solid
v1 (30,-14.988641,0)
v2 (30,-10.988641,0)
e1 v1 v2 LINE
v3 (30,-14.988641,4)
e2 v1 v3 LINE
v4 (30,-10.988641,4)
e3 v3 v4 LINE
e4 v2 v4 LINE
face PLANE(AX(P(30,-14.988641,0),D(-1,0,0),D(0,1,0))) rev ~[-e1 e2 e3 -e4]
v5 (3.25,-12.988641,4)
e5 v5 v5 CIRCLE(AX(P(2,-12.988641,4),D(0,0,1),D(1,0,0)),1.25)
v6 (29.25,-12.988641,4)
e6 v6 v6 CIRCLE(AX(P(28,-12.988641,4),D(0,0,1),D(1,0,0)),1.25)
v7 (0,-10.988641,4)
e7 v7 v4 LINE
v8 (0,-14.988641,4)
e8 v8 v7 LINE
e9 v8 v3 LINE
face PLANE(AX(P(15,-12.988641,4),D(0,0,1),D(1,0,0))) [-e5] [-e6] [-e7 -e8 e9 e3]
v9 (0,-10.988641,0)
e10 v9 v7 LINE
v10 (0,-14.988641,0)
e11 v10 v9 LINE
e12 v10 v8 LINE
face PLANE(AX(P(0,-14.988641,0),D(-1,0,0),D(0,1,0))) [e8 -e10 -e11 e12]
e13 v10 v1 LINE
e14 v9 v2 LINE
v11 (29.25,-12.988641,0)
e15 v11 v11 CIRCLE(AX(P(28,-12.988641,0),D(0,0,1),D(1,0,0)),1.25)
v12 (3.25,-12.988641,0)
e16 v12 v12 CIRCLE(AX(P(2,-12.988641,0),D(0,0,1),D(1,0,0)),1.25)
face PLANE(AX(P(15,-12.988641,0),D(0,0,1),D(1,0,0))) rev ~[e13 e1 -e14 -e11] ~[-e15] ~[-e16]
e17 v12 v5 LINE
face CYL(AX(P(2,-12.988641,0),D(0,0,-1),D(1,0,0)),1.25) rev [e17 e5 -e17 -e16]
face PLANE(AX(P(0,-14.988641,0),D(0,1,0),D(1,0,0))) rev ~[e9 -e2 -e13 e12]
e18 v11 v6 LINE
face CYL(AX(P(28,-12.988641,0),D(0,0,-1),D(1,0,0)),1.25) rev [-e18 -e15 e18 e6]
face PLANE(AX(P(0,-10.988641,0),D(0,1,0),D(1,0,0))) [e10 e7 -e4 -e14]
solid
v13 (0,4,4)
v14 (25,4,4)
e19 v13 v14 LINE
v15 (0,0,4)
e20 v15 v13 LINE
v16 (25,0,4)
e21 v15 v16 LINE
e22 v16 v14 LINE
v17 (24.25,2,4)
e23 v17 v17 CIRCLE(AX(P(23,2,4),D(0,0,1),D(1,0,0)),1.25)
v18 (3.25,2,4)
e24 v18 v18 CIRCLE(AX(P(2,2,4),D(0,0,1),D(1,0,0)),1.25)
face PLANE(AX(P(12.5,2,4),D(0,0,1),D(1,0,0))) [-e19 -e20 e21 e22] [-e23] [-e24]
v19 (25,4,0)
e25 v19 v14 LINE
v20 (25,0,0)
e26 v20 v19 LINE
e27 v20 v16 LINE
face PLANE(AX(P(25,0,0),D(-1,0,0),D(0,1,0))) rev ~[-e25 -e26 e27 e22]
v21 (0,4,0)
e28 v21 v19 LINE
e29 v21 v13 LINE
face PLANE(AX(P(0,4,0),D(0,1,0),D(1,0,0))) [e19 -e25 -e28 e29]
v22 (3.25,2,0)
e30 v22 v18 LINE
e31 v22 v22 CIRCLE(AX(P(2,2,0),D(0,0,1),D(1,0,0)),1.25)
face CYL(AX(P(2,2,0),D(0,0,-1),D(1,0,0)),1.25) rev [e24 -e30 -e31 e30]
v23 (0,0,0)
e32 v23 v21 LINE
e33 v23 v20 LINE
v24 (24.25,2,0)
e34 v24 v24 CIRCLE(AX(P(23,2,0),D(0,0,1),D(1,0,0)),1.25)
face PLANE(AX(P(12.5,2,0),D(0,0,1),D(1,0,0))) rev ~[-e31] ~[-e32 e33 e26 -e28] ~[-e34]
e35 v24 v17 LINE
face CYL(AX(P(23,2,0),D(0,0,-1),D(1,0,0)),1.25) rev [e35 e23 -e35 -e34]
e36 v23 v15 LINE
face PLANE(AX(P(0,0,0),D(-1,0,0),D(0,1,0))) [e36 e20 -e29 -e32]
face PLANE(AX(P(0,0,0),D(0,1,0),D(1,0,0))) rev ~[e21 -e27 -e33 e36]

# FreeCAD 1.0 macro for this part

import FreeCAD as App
import Part
import Sketcher
from FreeCAD import Vector
Q = App.Units.Quantity

doc = App.newDocument("Part")
body = doc.addObject("PartDesign::Body", "Body")

sketch1 = body.newObject("Sketcher::SketchObject", "Sketch")
sketch1.AttachmentSupport = (doc.getObject("XY_Plane"), [""])
sketch1.MapMode = "FlatFace"
sketch1.addGeometry(Part.LineSegment(Vector(0, 4, 0), Vector(0, 0, 0)), False)
sketch1.addGeometry(Part.LineSegment(Vector(0, 0, 0), Vector(25, 0, 0)), False)
sketch1.addGeometry(Part.LineSegment(Vector(25, 0, 0), Vector(25, 4, 0)), False)
sketch1.addGeometry(Part.LineSegment(Vector(25, 4, 0), Vector(0, 4, 0)), False)
sketch1.addGeometry(Part.Circle(Vector(2, 2, 0), Vector(0, 0, 1), 1.25), False)
sketch1.addGeometry(Part.Circle(Vector(23, 2, 0), Vector(0, 0, 1), 1.25), False)
sketch1.addConstraint(Sketcher.Constraint("Coincident", 0, 2, 1, 1))
sketch1.addConstraint(Sketcher.Constraint("Coincident", 1, 2, 2, 1))
sketch1.addConstraint(Sketcher.Constraint("Coincident", 2, 2, 3, 1))
sketch1.addConstraint(Sketcher.Constraint("Coincident", 3, 2, 0, 1))
sketch1.addConstraint(Sketcher.Constraint("Vertical", 0))
sketch1.addConstraint(Sketcher.Constraint("Horizontal", 1))
sketch1.addConstraint(Sketcher.Constraint("Vertical", 2))
sketch1.addConstraint(Sketcher.Constraint("Horizontal", 3))
sketch1.addConstraint(Sketcher.Constraint("Coincident", 0, 2, -1, 1))
sketch1.addConstraint(Sketcher.Constraint("Equal", 4, 5))
sketch1.addConstraint(Sketcher.Constraint("Horizontal", 4, 3, 5, 3))
sketch1.addConstraint(Sketcher.Constraint("Diameter", 4, Q("2.5 mm")))
sketch1.addConstraint(Sketcher.Constraint("DistanceX", 1, 1, 1, 2, Q("25 mm")))
sketch1.addConstraint(Sketcher.Constraint("DistanceY", 0, 2, 0, 1, Q("4 mm")))
sketch1.addConstraint(Sketcher.Constraint("DistanceX", -1, 1, 4, 3, Q("2 mm")))
sketch1.addConstraint(Sketcher.Constraint("DistanceY", -1, 1, 4, 3, Q("2 mm")))
sketch1.addConstraint(Sketcher.Constraint("DistanceX", -1, 1, 5, 3, Q("23 mm")))
pad1 = body.newObject("PartDesign::Pad", "Pad")
pad1.Profile = sketch1
pad1.Length = 4
body2 = doc.addObject("PartDesign::Body", "Body001")

sketch2 = body2.newObject("Sketcher::SketchObject", "Sketch001")
sketch2.AttachmentSupport = (doc.getObject("XY_Plane001"), [""])
sketch2.MapMode = "FlatFace"
sketch2.addGeometry(Part.LineSegment(Vector(0, -10.988641, 0), Vector(0, -14.988641, 0)), False)
sketch2.addGeometry(Part.LineSegment(Vector(0, -14.988641, 0), Vector(30, -14.988641, 0)), False)
sketch2.addGeometry(Part.LineSegment(Vector(30, -14.988641, 0), Vector(30, -10.988641, 0)), False)
sketch2.addGeometry(Part.LineSegment(Vector(30, -10.988641, 0), Vector(0, -10.988641, 0)), False)
sketch2.addGeometry(Part.Circle(Vector(2, -12.988641, 0), Vector(0, 0, 1), 1.25), False)
sketch2.addGeometry(Part.Circle(Vector(28, -12.988641, 0), Vector(0, 0, 1), 1.25), False)
sketch2.addConstraint(Sketcher.Constraint("Coincident", 0, 2, 1, 1))
sketch2.addConstraint(Sketcher.Constraint("Coincident", 1, 2, 2, 1))
sketch2.addConstraint(Sketcher.Constraint("Coincident", 2, 2, 3, 1))
sketch2.addConstraint(Sketcher.Constraint("Coincident", 3, 2, 0, 1))
sketch2.addConstraint(Sketcher.Constraint("Vertical", 0))
sketch2.addConstraint(Sketcher.Constraint("Horizontal", 1))
sketch2.addConstraint(Sketcher.Constraint("Vertical", 2))
sketch2.addConstraint(Sketcher.Constraint("Horizontal", 3))
sketch2.addConstraint(Sketcher.Constraint("Equal", 4, 5))
sketch2.addConstraint(Sketcher.Constraint("PointOnObject", 0, 2, -2))
sketch2.addConstraint(Sketcher.Constraint("Horizontal", 4, 3, 5, 3))
sketch2.addConstraint(Sketcher.Constraint("Diameter", 4, Q("2.5 mm")))
sketch2.addConstraint(Sketcher.Constraint("DistanceX", 1, 1, 1, 2, Q("30 mm")))
sketch2.addConstraint(Sketcher.Constraint("DistanceY", 0, 2, 0, 1, Q("4 mm")))
sketch2.addConstraint(Sketcher.Constraint("DistanceX", -1, 1, 4, 3, Q("2 mm")))
sketch2.addConstraint(Sketcher.Constraint("DistanceX", -1, 1, 5, 3, Q("28 mm")))
sketch2.addConstraint(Sketcher.Constraint("DistanceY", 0, 2, 4, 3, Q("2 mm")))
sketch2.addConstraint(Sketcher.Constraint("DistanceY", 4, 3, -1, 1, Q("12.988641 mm")))
pad2 = body2.newObject("PartDesign::Pad", "Pad001")
pad2.Profile = sketch2
pad2.Length = 4

doc.recompute()
